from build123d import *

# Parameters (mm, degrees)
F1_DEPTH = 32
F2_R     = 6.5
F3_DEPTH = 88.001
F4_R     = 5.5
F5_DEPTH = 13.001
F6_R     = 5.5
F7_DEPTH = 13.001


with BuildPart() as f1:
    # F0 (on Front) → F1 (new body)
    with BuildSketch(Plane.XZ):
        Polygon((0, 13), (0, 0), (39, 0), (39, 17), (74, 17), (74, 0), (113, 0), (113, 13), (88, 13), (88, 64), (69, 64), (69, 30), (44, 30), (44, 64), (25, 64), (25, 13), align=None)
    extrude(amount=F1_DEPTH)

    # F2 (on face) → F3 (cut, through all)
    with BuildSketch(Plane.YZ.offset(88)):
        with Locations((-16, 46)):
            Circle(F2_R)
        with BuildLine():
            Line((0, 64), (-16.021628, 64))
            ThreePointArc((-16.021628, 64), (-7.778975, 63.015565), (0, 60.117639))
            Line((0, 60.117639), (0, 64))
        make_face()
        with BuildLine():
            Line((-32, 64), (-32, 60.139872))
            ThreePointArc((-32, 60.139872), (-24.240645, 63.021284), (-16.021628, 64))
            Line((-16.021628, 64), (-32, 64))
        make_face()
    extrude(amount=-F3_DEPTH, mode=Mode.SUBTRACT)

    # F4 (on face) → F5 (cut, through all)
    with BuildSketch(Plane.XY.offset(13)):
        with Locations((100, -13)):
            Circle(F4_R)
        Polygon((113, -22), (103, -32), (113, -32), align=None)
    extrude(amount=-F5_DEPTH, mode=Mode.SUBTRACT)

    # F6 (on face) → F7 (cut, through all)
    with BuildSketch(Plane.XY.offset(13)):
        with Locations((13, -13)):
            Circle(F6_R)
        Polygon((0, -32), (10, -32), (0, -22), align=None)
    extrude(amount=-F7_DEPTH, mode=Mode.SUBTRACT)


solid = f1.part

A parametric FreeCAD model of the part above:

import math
import FreeCAD as App
import Part
import Sketcher

V = App.Vector
Q = App.Units.Quantity


def add_polygon(sketch, points):
    """Adds a closed chain of lines whose ends are joined by coincident constraints."""
    first, n = sketch.GeometryCount, len(points)
    for a, b in zip(points, points[1:] + points[:1]):
        sketch.addGeometry(Part.LineSegment(App.Vector(*a, 0), App.Vector(*b, 0)), False)
    for i in range(n):
        sketch.addConstraint(Sketcher.Constraint("Coincident", first + i, 2, first + (i + 1) % n, 1))

doc = App.newDocument("Part")
params = doc.addObject("Spreadsheet::Sheet", "Params")
for row, (alias, value) in enumerate([
    ("sketch1_width", "39 mm"),
    ("sketch1_width2", "35 mm"),
    ("sketch1_width3", "25 mm"),
    ("sketch1_height", "13 mm"),
    ("sketch1_height2", "17 mm"),
    ("pad1_length", "32 mm"),
    ("sketch2_diameter", "13 mm"),
    ("sketch3_diameter", "11 mm"),
    ("sketch3_width", "10 mm"),
    ("sketch4_diameter", "11 mm"),
    ("sketch4_width", "10 mm"),
], start=1):
    params.set(f"A{row}", alias)
    params.set(f"B{row}", "=" + value)
    params.setAlias(f"B{row}", alias)

body = doc.addObject("PartDesign::Body", "Body")

sketch1 = body.newObject("Sketcher::SketchObject", "Sketch")
sketch1.AttachmentSupport = (doc.getObject("XZ_Plane"), [""])
sketch1.MapMode = "FlatFace"
add_polygon(sketch1, [(0, 13), (0, 0), (39, 0), (39, 17), (74, 17), (74, 0), (113, 0), (113, 13), (88, 13), (88, 64), (69, 64), (69, 30), (44, 30), (44, 64), (25, 64), (25, 13)])
sketch1.addConstraint([
    Sketcher.Constraint("Vertical", 0),
    Sketcher.Constraint("Horizontal", 1),
    Sketcher.Constraint("Vertical", 2),
    Sketcher.Constraint("Horizontal", 3),
    Sketcher.Constraint("Vertical", 4),
    Sketcher.Constraint("Horizontal", 5),
    Sketcher.Constraint("Vertical", 6),
    Sketcher.Constraint("Horizontal", 7),
    Sketcher.Constraint("Vertical", 8),
    Sketcher.Constraint("Horizontal", 9),
    Sketcher.Constraint("Vertical", 10),
    Sketcher.Constraint("Horizontal", 11),
    Sketcher.Constraint("Vertical", 12),
    Sketcher.Constraint("Horizontal", 13),
    Sketcher.Constraint("Vertical", 14),
    Sketcher.Constraint("Horizontal", 15),
    Sketcher.Constraint("Coincident", 0, 2, -1, 1),
    Sketcher.Constraint("PointOnObject", 4, 2, -1),
    Sketcher.Constraint("Horizontal", 9, 2, 12, 2),
    Sketcher.Constraint("Horizontal", 7, 2, 14, 2),
    Sketcher.Constraint("Equal", 1, 5),
    Sketcher.Constraint("Equal", 7, 11),
    Sketcher.Constraint("Equal", 9, 13),
    Sketcher.Constraint("Equal", 11, 15),
    Sketcher.Constraint("DistanceX", 1, 1, 1, 2, Q("39 mm")),
    Sketcher.Constraint("DistanceX", 3, 1, 3, 2, Q("35 mm")),
    Sketcher.Constraint("DistanceX", 7, 2, 7, 1, Q("25 mm")),
    Sketcher.Constraint("DistanceY", 0, 2, 0, 1, Q("13 mm")),
    Sketcher.Constraint("DistanceY", 2, 1, 2, 2, Q("17 mm")),
    Sketcher.Constraint("DistanceY", 8, 1, 8, 2, Q("51 mm")),
    Sketcher.Constraint("DistanceY", 10, 2, 10, 1, Q("34 mm")),
])
sketch1.setExpression("Constraints[40]", "Params.sketch1_width")
sketch1.setExpression("Constraints[41]", "Params.sketch1_width2")
sketch1.setExpression("Constraints[42]", "Params.sketch1_width3")
sketch1.setExpression("Constraints[43]", "Params.sketch1_height")
sketch1.setExpression("Constraints[44]", "Params.sketch1_height2")
pad1 = body.newObject("PartDesign::Pad", "Pad")
pad1.Profile = sketch1
pad1.setExpression("Length", "Params.pad1_length")

sketch2 = body.newObject("Sketcher::SketchObject", "Sketch001")
sketch2.AttachmentSupport = (doc.getObject("YZ_Plane"), [""])
sketch2.MapMode = "FlatFace"
sketch2.AttachmentOffset = App.Placement(V(0, 0, 88), App.Rotation())
sketch2.addGeometry([
    Part.Circle(V(-16, 46, 0), V(0, 0, 1), 6.5),
    Part.LineSegment(V(0, 64, 0), V(-16, 64, 0)),
    Part.ArcOfCircle(Part.Circle(V(-16, 29, 0), V(0, 0, 1), 35), math.radians(63), math.radians(90)),
    Part.LineSegment(V(0, 60.1, 0), V(0, 64, 0)),
    Part.LineSegment(V(-32, 64, 0), V(-32, 60.1, 0)),
    Part.ArcOfCircle(Part.Circle(V(-16, 29, 0), V(0, 0, 1), 35), math.radians(90), math.radians(117)),
    Part.LineSegment(V(-16, 64, 0), V(-32, 64, 0)),
], False)
sketch2.addConstraint([
    Sketcher.Constraint("Tangent", 1, 2, 2, 2),
    Sketcher.Constraint("Coincident", 2, 1, 3, 1),
    Sketcher.Constraint("Coincident", 3, 2, 1, 1),
    Sketcher.Constraint("Coincident", 4, 2, 5, 2),
    Sketcher.Constraint("Tangent", 5, 1, 6, 1),
    Sketcher.Constraint("Coincident", 6, 2, 4, 1),
    Sketcher.Constraint("Horizontal", 1),
    Sketcher.Constraint("Vertical", 3),
    Sketcher.Constraint("Vertical", 4),
    Sketcher.Constraint("Horizontal", 6),
    Sketcher.Constraint("Coincident", 5, 1, 1, 2),
    Sketcher.Constraint("PointOnObject", 2, 1, -2),
    Sketcher.Constraint("Diameter", 0, Q("13 mm")),
    Sketcher.Constraint("DistanceX", 0, 3, -1, 1, Q("16 mm")),
    Sketcher.Constraint("DistanceY", -1, 1, 0, 3, Q("46 mm")),
    Sketcher.Constraint("DistanceY", -1, 1, 1, 2, Q("64 mm")),
    Sketcher.Constraint("DistanceX", 4, 2, -1, 1, Q("32 mm")),
    Sketcher.Constraint("Radius", 2, Q("35.00001 mm")),
    Sketcher.Constraint("Radius", 5, Q("34.999997 mm")),
    Sketcher.Constraint("DistanceX", 1, 2, 1, 1, Q("16.021628 mm")),
])
sketch2.setExpression("Constraints[12]", "Params.sketch2_diameter")
pocket1 = body.newObject("PartDesign::Pocket", "Pocket")
pocket1.Profile = sketch2
pocket1.Type = "ThroughAll"

sketch3 = body.newObject("Sketcher::SketchObject", "Sketch002")
sketch3.AttachmentSupport = (doc.getObject("XY_Plane"), [""])
sketch3.MapMode = "FlatFace"
sketch3.AttachmentOffset = App.Placement(V(0, 0, 13), App.Rotation())
sketch3.addGeometry(Part.Circle(V(100, -13, 0), V(0, 0, 1), 6), False)
add_polygon(sketch3, [(113, -22), (103, -32), (113, -32)])
sketch3.addConstraint([
    Sketcher.Constraint("Horizontal", 2),
    Sketcher.Constraint("Vertical", 3),
    Sketcher.Constraint("Equal", 2, 3),
    Sketcher.Constraint("Diameter", 0, Q("11 mm")),
    Sketcher.Constraint("DistanceX", 2, 1, 2, 2, Q("10 mm")),
    Sketcher.Constraint("DistanceX", -1, 1, 0, 3, Q("100 mm")),
    Sketcher.Constraint("DistanceY", 0, 3, -1, 1, Q("13 mm")),
    Sketcher.Constraint("DistanceX", -1, 1, 1, 2, Q("103 mm")),
    Sketcher.Constraint("DistanceY", 1, 2, -1, 1, Q("32 mm")),
])
sketch3.setExpression("Constraints[6]", "Params.sketch3_diameter")
sketch3.setExpression("Constraints[7]", "Params.sketch3_width")
pocket2 = body.newObject("PartDesign::Pocket", "Pocket001")
pocket2.Profile = sketch3
pocket2.Type = "ThroughAll"

sketch4 = body.newObject("Sketcher::SketchObject", "Sketch003")
sketch4.AttachmentSupport = (doc.getObject("XY_Plane"), [""])
sketch4.MapMode = "FlatFace"
sketch4.AttachmentOffset = App.Placement(V(0, 0, 13), App.Rotation())
sketch4.addGeometry(Part.Circle(V(13, -13, 0), V(0, 0, 1), 6), False)
add_polygon(sketch4, [(0, -32), (10, -32), (0, -22)])
sketch4.addConstraint([
    Sketcher.Constraint("Horizontal", 1),
    Sketcher.Constraint("Vertical", 3),
    Sketcher.Constraint("PointOnObject", 2, 2, -2),
    Sketcher.Constraint("Equal", 1, 3),
    Sketcher.Constraint("Diameter", 0, Q("11 mm")),
    Sketcher.Constraint("DistanceX", 1, 1, 1, 2, Q("10 mm")),
    Sketcher.Constraint("DistanceX", -1, 1, 0, 3, Q("13 mm")),
    Sketcher.Constraint("DistanceY", 0, 3, -1, 1, Q("13 mm")),
    Sketcher.Constraint("DistanceY", 1, 2, -1, 1, Q("32 mm")),
])
sketch4.setExpression("Constraints[7]", "Params.sketch4_diameter")
sketch4.setExpression("Constraints[8]", "Params.sketch4_width")
pocket3 = body.newObject("PartDesign::Pocket", "Pocket002")
pocket3.Profile = sketch4
pocket3.Type = "ThroughAll"

doc.recompute()
